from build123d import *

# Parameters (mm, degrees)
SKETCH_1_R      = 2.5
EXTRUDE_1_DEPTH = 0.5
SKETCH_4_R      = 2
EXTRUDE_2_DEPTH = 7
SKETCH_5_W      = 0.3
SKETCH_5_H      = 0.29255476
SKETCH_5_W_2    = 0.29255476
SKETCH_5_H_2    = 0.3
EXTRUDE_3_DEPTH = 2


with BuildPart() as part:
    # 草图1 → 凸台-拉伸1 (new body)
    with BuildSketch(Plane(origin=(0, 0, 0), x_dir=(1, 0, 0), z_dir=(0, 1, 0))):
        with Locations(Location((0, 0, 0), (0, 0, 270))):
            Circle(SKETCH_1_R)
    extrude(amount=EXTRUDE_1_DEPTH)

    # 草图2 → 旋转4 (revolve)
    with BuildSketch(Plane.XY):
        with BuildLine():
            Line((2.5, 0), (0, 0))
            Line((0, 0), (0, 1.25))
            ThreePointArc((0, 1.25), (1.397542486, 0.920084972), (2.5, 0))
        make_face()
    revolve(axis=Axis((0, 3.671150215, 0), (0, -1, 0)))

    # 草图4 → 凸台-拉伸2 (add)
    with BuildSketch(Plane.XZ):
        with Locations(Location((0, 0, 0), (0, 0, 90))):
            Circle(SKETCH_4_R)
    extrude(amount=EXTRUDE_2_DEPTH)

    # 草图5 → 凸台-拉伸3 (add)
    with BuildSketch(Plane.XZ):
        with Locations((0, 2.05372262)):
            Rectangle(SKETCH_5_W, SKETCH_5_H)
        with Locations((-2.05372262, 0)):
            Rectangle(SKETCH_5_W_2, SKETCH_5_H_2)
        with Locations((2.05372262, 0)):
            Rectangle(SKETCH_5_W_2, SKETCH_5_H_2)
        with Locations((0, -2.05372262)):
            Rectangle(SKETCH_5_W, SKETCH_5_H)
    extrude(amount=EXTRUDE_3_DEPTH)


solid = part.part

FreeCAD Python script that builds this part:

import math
import FreeCAD as App
import Part
import Sketcher
from FreeCAD import Vector
Q = App.Units.Quantity


def add_polygon(sketch, points):
    """Adds a closed chain of lines whose ends are joined by coincident constraints."""
    first, n = sketch.GeometryCount, len(points)
    for a, b in zip(points, points[1:] + points[:1]):
        sketch.addGeometry(Part.LineSegment(App.Vector(*a, 0), App.Vector(*b, 0)), False)
    for i in range(n):
        sketch.addConstraint(Sketcher.Constraint("Coincident", first + i, 2, first + (i + 1) % n, 1))

doc = App.newDocument("Part")
body = doc.addObject("PartDesign::Body", "Body")

# Sketch on XZ plane
sketch1 = body.newObject("Sketcher::SketchObject", "Sketch")
sketch1.AttachmentSupport = (doc.getObject("XZ_Plane"), [""])
sketch1.MapMode = "FlatFace"
sketch1.addGeometry(Part.Circle(Vector(0, 0, 0), Vector(0, 0, 1), 2.5), False)
sketch1.addConstraint([
    Sketcher.Constraint("Coincident", 0, 3, -1, 1),
    Sketcher.Constraint("Diameter", 0, Q("5 mm")),
])
pad1 = body.newObject("PartDesign::Pad", "Pad")
pad1.Profile = sketch1
pad1.Length = 0.5
pad1.Reversed = True

# Sketch on XY plane
sketch2 = body.newObject("Sketcher::SketchObject", "Sketch001")
sketch2.AttachmentSupport = (doc.getObject("XY_Plane"), [""])
sketch2.MapMode = "FlatFace"
sketch2.addGeometry([
    Part.LineSegment(Vector(0, 0, 0), Vector(2.5, 0, 0)),
    Part.ArcOfCircle(Part.Circle(Vector(0, -1.9, 0), Vector(0, 0, 1), 3.1), math.radians(37), math.radians(90)),
    Part.LineSegment(Vector(0, 1.2, 0), Vector(0, 0, 0)),
], False)
sketch2.addConstraint([
    Sketcher.Constraint("Coincident", 0, 2, 1, 1),
    Sketcher.Constraint("Coincident", 1, 2, 2, 1),
    Sketcher.Constraint("Coincident", 2, 2, 0, 1),
    Sketcher.Constraint("Horizontal", 0),
    Sketcher.Constraint("Vertical", 2),
    Sketcher.Constraint("Coincident", 2, 2, -1, 1),
    Sketcher.Constraint("PointOnObject", 1, 3, -2),
    Sketcher.Constraint("DistanceX", 0, 1, 0, 2, Q("2.5 mm")),
    Sketcher.Constraint("Radius", 1, Q("3.125 mm")),
])
revolution = body.newObject("PartDesign::Revolution", "Revolution")
revolution.Profile = sketch2
revolution.ReferenceAxis = (sketch2, ["V_Axis"])
revolution.Angle = 360

# Sketch on XZ plane
sketch3 = body.newObject("Sketcher::SketchObject", "Sketch002")
sketch3.AttachmentSupport = (doc.getObject("XZ_Plane"), [""])
sketch3.MapMode = "FlatFace"
sketch3.addGeometry(Part.Circle(Vector(0, 0, 0), Vector(0, 0, 1), 2), False)
sketch3.addConstraint([
    Sketcher.Constraint("Coincident", 0, 3, -1, 1),
    Sketcher.Constraint("Diameter", 0, Q("4 mm")),
])
pad2 = body.newObject("PartDesign::Pad", "Pad001")
pad2.Profile = sketch3
pad2.Length = 7

# Sketch on XZ plane
sketch4 = body.newObject("Sketcher::SketchObject", "Sketch003")
sketch4.AttachmentSupport = (doc.getObject("XZ_Plane"), [""])
sketch4.MapMode = "FlatFace"
add_polygon(sketch4, [(-0.15, 2.2), (-0.15, 1.91), (0.15, 1.91), (0.15, 2.2)])  # lines 0-3
add_polygon(sketch4, [(-2.2, 0.15), (-2.2, -0.15), (-1.91, -0.15), (-1.91, 0.15)])  # lines 4-7
add_polygon(sketch4, [(1.91, 0.15), (1.91, -0.15), (2.2, -0.15), (2.2, 0.15)])  # lines 8-11
add_polygon(sketch4, [(-0.15, -1.91), (-0.15, -2.2), (0.15, -2.2), (0.15, -1.91)])  # lines 12-15
sketch4.addConstraint([
    Sketcher.Constraint("Vertical", 0),
    Sketcher.Constraint("Horizontal", 1),
    Sketcher.Constraint("Vertical", 2),
    Sketcher.Constraint("Horizontal", 3),
    Sketcher.Constraint("Vertical", 4),
    Sketcher.Constraint("Horizontal", 5),
    Sketcher.Constraint("Vertical", 6),
    Sketcher.Constraint("Horizontal", 7),
    Sketcher.Constraint("Vertical", 8),
    Sketcher.Constraint("Horizontal", 9),
    Sketcher.Constraint("Vertical", 10),
    Sketcher.Constraint("Horizontal", 11),
    Sketcher.Constraint("Vertical", 12),
    Sketcher.Constraint("Horizontal", 13),
    Sketcher.Constraint("Vertical", 14),
    Sketcher.Constraint("Horizontal", 15),
    Sketcher.Constraint("Symmetric", 6, 2, 8, 2, -1, 1),
    Sketcher.Constraint("Symmetric", 4, 2, 10, 2, -1, 1),
    Sketcher.Constraint("Symmetric", 2, 2, 12, 2, -1, 1),
    Sketcher.Constraint("Symmetric", 0, 2, 14, 2, -1, 1),
    Sketcher.Constraint("Horizontal", 5, 2, 8, 2),
    Sketcher.Constraint("Vertical", 3, 2, 12, 2),
    Sketcher.Constraint("Equal", 11, 0),
    Sketcher.Constraint("Equal", 15, 4),
    Sketcher.Constraint("DistanceX", 1, 1, 1, 2, Q("0.3 mm")),
    Sketcher.Constraint("DistanceY", -1, 1, 2, 2, Q("2.2 mm")),
    Sketcher.Constraint("DistanceX", 4, 2, -1, 1, Q("2.2 mm")),
    Sketcher.Constraint("DistanceX", 5, 1, 5, 2, Q("0.292555 mm")),
])
pad3 = body.newObject("PartDesign::Pad", "Pad002")
pad3.Profile = sketch4
pad3.Length = 2

doc.recompute()
